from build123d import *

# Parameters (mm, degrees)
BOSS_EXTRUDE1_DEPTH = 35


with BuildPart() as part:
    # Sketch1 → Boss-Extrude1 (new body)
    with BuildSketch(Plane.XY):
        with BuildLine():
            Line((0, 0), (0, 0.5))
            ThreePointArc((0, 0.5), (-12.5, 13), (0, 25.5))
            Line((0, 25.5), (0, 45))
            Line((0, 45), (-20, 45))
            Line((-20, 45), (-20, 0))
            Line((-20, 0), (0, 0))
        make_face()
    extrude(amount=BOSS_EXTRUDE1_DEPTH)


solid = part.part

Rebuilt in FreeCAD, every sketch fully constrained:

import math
import FreeCAD as App
import Part
import Sketcher
Q = App.Units.Quantity

doc = App.newDocument("Part")
params = doc.addObject("Spreadsheet::Sheet", "Params")
for row, (alias, value) in enumerate([
    ("sketch1_radius", "12.5 mm"),
    ("sketch1_width", "20 mm"),
    ("sketch1_height", "45 mm"),
    ("sketch1_height2", "0.5 mm"),
    ("pad1_length", "35 mm"),
], start=1):
    params.set(f"A{row}", alias)
    params.set(f"B{row}", "=" + value)
    params.setAlias(f"B{row}", alias)

body = doc.addObject("PartDesign::Body", "Body")

# Sketch on XY plane
sketch1 = body.newObject("Sketcher::SketchObject", "Sketch")
sketch1.AttachmentSupport = (doc.getObject("XY_Plane"), [""])
sketch1.MapMode = "FlatFace"
sketch1.addGeometry([
    Part.LineSegment(App.Vector(0, 0, 0), App.Vector(0, 0.5, 0)),  # 0
    Part.ArcOfCircle(Part.Circle(App.Vector(0, 13, 0), App.Vector(0, 0, 1), 12.5), math.radians(90), math.radians(270)),  # 1
    Part.LineSegment(App.Vector(0, 25.5, 0), App.Vector(0, 45, 0)),  # 2
    Part.LineSegment(App.Vector(0, 45, 0), App.Vector(-20, 45, 0)),  # 3
    Part.LineSegment(App.Vector(-20, 45, 0), App.Vector(-20, 0, 0)),  # 4
    Part.LineSegment(App.Vector(-20, 0, 0), App.Vector(0, 0, 0)),  # 5
], False)
sketch1.addConstraint([
    Sketcher.Constraint("Coincident", 0, 2, 1, 2),
    Sketcher.Constraint("Coincident", 1, 1, 2, 1),
    Sketcher.Constraint("Coincident", 2, 2, 3, 1),
    Sketcher.Constraint("Coincident", 3, 2, 4, 1),
    Sketcher.Constraint("Coincident", 4, 2, 5, 1),
    Sketcher.Constraint("Coincident", 5, 2, 0, 1),
    Sketcher.Constraint("Vertical", 0),
    Sketcher.Constraint("Vertical", 2),
    Sketcher.Constraint("Horizontal", 3),
    Sketcher.Constraint("Vertical", 4),
    Sketcher.Constraint("Horizontal", 5),
    Sketcher.Constraint("Coincident", 5, 2, -1, 1),
    Sketcher.Constraint("PointOnObject", 1, 3, -2),
    Sketcher.Constraint("PointOnObject", 1, 1, -2),
    Sketcher.Constraint("Radius", 1, Q("12.5 mm")),
    Sketcher.Constraint("DistanceX", 3, 2, 3, 1, Q("20 mm")),
    Sketcher.Constraint("DistanceY", 4, 2, 4, 1, Q("45 mm")),
    Sketcher.Constraint("DistanceY", 0, 1, 0, 2, Q("0.5 mm")),
])
sketch1.setExpression("Constraints[14]", "Params.sketch1_radius")
sketch1.setExpression("Constraints[15]", "Params.sketch1_width")
sketch1.setExpression("Constraints[16]", "Params.sketch1_height")
sketch1.setExpression("Constraints[17]", "Params.sketch1_height2")
pad1 = body.newObject("PartDesign::Pad", "Pad")
pad1.Profile = sketch1
pad1.setExpression("Length", "Params.pad1_length")

doc.recompute()
